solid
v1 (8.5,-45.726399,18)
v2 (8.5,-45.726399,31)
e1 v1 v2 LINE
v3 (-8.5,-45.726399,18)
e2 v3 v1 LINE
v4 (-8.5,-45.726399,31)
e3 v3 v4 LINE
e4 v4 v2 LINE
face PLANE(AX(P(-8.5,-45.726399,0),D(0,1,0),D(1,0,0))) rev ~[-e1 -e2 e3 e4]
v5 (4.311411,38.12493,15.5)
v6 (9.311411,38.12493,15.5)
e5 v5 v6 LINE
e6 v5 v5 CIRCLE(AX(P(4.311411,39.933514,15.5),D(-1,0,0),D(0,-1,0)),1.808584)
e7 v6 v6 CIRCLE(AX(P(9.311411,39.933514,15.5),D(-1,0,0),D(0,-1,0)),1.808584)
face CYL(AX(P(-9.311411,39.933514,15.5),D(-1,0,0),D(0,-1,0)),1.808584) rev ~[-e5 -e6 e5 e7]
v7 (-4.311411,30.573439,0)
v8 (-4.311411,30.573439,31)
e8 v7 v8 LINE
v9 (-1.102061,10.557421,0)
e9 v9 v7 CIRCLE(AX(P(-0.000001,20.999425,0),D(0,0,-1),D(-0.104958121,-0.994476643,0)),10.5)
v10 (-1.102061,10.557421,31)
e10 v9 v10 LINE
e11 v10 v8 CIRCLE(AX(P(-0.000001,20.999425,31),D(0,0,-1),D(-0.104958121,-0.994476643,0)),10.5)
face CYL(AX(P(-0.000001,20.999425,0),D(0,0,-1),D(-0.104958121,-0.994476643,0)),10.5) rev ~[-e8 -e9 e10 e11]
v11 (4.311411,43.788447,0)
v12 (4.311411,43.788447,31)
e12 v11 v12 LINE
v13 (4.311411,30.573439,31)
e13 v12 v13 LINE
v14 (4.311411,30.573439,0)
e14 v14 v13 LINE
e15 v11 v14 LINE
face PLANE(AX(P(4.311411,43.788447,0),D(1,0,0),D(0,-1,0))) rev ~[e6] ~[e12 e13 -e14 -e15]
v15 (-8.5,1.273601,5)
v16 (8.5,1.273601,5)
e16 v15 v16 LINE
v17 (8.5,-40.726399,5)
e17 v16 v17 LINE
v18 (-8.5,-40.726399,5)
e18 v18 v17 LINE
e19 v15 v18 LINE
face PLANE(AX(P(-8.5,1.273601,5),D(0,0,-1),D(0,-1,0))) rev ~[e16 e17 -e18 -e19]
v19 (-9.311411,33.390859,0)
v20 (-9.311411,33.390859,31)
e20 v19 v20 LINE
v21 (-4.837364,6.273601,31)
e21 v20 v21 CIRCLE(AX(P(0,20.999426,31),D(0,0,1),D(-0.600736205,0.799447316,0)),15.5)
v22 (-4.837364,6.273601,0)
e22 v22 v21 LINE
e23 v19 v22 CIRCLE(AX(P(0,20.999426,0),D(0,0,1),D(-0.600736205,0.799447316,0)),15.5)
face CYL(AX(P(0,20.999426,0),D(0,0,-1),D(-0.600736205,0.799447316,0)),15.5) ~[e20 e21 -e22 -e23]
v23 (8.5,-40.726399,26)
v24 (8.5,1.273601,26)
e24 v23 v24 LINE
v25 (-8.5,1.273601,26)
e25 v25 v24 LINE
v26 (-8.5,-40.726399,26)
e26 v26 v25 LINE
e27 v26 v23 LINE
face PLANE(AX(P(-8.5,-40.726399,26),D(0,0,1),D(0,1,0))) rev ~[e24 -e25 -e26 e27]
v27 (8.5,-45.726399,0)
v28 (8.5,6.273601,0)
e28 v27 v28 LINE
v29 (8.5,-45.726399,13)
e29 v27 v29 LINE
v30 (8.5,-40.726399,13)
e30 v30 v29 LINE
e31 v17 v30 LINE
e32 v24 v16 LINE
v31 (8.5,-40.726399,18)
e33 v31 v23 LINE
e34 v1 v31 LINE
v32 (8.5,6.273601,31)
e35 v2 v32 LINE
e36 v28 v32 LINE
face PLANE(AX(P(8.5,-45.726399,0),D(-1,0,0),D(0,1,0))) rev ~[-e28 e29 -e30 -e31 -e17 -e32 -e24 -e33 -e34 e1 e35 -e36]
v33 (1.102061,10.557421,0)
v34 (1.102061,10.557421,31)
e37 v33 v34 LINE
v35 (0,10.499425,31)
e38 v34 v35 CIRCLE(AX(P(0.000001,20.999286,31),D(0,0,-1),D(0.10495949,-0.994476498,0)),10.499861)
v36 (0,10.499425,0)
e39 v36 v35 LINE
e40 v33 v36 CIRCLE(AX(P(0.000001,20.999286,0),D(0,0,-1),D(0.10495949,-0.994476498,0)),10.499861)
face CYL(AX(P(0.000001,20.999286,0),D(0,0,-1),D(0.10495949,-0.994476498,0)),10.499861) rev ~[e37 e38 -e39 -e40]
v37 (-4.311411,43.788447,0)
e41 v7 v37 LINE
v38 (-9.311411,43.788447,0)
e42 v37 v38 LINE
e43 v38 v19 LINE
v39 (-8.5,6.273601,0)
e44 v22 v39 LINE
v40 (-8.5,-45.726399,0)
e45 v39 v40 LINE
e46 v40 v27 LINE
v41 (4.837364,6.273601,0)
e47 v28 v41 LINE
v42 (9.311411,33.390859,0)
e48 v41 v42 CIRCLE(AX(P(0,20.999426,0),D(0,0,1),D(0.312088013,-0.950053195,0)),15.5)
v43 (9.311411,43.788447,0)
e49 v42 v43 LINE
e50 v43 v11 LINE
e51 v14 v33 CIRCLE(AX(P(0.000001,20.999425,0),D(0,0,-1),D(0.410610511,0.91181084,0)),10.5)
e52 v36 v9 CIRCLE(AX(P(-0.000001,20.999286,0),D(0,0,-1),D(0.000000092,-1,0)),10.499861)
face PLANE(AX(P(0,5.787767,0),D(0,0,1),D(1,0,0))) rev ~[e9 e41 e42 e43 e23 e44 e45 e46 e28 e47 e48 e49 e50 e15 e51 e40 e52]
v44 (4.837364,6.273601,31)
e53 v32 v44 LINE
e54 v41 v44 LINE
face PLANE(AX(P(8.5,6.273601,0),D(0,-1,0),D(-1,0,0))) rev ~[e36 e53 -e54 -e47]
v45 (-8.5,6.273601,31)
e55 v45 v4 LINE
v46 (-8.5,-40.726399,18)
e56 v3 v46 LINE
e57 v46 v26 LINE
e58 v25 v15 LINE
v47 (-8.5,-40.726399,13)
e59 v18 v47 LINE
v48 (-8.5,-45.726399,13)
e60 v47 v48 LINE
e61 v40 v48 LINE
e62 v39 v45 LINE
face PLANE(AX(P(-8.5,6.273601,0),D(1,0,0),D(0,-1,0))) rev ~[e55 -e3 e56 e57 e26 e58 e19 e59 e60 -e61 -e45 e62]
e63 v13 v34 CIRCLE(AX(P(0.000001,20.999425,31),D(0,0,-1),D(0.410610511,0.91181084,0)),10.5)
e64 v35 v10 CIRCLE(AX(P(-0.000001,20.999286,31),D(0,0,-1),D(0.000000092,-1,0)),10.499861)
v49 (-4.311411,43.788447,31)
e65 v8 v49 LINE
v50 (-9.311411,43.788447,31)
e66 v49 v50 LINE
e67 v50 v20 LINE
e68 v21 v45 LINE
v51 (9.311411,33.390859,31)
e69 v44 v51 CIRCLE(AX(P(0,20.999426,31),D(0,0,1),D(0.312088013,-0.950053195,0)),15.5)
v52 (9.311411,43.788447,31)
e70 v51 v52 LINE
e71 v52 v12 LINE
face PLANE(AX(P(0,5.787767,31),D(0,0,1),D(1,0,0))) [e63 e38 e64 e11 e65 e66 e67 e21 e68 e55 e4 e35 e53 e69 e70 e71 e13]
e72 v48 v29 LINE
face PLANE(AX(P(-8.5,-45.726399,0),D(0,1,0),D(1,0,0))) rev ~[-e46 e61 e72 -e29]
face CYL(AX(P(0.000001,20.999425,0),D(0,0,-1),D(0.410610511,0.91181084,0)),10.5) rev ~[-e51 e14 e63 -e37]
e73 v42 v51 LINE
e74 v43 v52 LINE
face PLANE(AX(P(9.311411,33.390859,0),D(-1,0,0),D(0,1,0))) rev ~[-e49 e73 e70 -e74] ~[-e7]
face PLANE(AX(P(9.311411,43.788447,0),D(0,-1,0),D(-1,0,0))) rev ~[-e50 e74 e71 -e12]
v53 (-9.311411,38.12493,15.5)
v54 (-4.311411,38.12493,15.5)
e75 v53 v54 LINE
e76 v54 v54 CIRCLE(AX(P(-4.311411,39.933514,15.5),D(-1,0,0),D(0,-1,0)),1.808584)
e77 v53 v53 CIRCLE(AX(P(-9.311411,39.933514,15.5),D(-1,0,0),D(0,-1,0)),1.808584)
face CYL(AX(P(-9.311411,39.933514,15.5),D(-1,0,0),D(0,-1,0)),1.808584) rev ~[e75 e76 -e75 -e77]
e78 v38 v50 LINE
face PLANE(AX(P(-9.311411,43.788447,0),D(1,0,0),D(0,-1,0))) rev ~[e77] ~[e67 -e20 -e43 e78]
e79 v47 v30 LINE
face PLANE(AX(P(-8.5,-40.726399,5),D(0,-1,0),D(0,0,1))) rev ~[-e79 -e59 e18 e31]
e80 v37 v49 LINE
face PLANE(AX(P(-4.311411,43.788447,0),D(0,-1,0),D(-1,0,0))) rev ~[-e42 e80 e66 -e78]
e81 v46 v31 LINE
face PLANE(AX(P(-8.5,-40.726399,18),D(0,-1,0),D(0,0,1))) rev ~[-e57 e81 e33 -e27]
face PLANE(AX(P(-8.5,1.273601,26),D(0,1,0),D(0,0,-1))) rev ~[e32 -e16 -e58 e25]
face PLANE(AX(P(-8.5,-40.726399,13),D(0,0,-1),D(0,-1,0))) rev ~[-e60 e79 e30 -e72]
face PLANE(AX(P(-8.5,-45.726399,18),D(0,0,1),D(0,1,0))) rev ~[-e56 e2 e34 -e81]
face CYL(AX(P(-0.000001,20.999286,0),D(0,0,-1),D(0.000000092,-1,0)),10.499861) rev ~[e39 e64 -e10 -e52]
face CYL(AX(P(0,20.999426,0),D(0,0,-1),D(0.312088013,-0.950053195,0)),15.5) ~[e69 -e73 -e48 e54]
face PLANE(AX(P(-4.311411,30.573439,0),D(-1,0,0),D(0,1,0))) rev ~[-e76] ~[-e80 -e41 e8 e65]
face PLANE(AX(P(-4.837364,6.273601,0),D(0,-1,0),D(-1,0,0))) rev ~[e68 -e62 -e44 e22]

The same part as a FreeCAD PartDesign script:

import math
import FreeCAD as App
import Part
import Sketcher


def add_polygon(sketch, points):
    """Adds a closed chain of lines whose ends are joined by coincident constraints."""
    first, n = sketch.GeometryCount, len(points)
    for a, b in zip(points, points[1:] + points[:1]):
        sketch.addGeometry(Part.LineSegment(App.Vector(*a, 0), App.Vector(*b, 0)), False)
    for i in range(n):
        sketch.addConstraint(Sketcher.Constraint("Coincident", first + i, 2, first + (i + 1) % n, 1))

doc = App.newDocument("Part")
body = doc.addObject("PartDesign::Body", "Body")

# Sketch on XY plane
sketch1 = body.newObject("Sketcher::SketchObject", "Sketch")
sketch1.AttachmentSupport = (doc.getObject("XY_Plane"), [""])
sketch1.MapMode = "FlatFace"
sketch1.addGeometry(Part.LineSegment(App.Vector(-4.311411, 30.573439, 0), App.Vector(-4.311411, 43.788447, 0)), False)
sketch1.addGeometry(Part.LineSegment(App.Vector(-4.311411, 43.788447, 0), App.Vector(-9.311411, 43.788447, 0)), False)
sketch1.addGeometry(Part.LineSegment(App.Vector(-9.311411, 43.788447, 0), App.Vector(-9.311411, 33.390859, 0)), False)
sketch1.addGeometry(Part.ArcOfCircle(Part.Circle(App.Vector(0, 20.999426, 0), App.Vector(0, 0, 1), 15.5), math.radians(126.922643), math.radians(251.814891)), False)
sketch1.addGeometry(Part.LineSegment(App.Vector(-4.837364, 6.273601, 0), App.Vector(-8.5, 6.273601, 0)), False)
sketch1.addGeometry(Part.LineSegment(App.Vector(-8.5, 6.273601, 0), App.Vector(-8.5, -45.726399, 0)), False)
sketch1.addGeometry(Part.LineSegment(App.Vector(-8.5, -45.726399, 0), App.Vector(8.5, -45.726399, 0)), False)
sketch1.addGeometry(Part.LineSegment(App.Vector(8.5, -45.726399, 0), App.Vector(8.5, 6.273601, 0)), False)
sketch1.addGeometry(Part.LineSegment(App.Vector(8.5, 6.273601, 0), App.Vector(4.837364, 6.273601, 0)), False)
sketch1.addGeometry(Part.ArcOfCircle(Part.Circle(App.Vector(0, 20.999426, 0), App.Vector(0, 0, 1), 15.5), math.radians(-71.814891), math.radians(53.077357)), False)
sketch1.addGeometry(Part.LineSegment(App.Vector(9.311411, 33.390859, 0), App.Vector(9.311411, 43.788447, 0)), False)
sketch1.addGeometry(Part.LineSegment(App.Vector(9.311411, 43.788447, 0), App.Vector(4.311411, 43.788447, 0)), False)
sketch1.addGeometry(Part.LineSegment(App.Vector(4.311411, 43.788447, 0), App.Vector(4.311411, 30.573439, 0)), False)
sketch1.addGeometry(Part.ArcOfCircle(Part.Circle(App.Vector(0.000001, 20.999425, 0), App.Vector(0, 0, 1), 10.5), math.radians(-83.975246), math.radians(65.756808)), False)
sketch1.addGeometry(Part.ArcOfCircle(Part.Circle(App.Vector(0.000001, 20.999286, 0), App.Vector(0, 0, 1), 10.499861), math.radians(-90.000005), math.radians(-83.975167)), False)
sketch1.addGeometry(Part.ArcOfCircle(Part.Circle(App.Vector(-0.000001, 20.999286, 0), App.Vector(0, 0, 1), 10.499861), math.radians(-96.024833), math.radians(-89.999995)), False)
sketch1.addGeometry(Part.ArcOfCircle(Part.Circle(App.Vector(-0.000001, 20.999425, 0), App.Vector(0, 0, 1), 10.5), math.radians(114.243192), math.radians(263.975246)), False)
sketch1.addConstraint(Sketcher.Constraint("Coincident", 0, 2, 1, 1))
sketch1.addConstraint(Sketcher.Constraint("Coincident", 1, 2, 2, 1))
sketch1.addConstraint(Sketcher.Constraint("Coincident", 2, 2, 3, 1))
sketch1.addConstraint(Sketcher.Constraint("Coincident", 3, 2, 4, 1))
sketch1.addConstraint(Sketcher.Constraint("Coincident", 4, 2, 5, 1))
sketch1.addConstraint(Sketcher.Constraint("Coincident", 5, 2, 6, 1))
sketch1.addConstraint(Sketcher.Constraint("Coincident", 6, 2, 7, 1))
sketch1.addConstraint(Sketcher.Constraint("Coincident", 7, 2, 8, 1))
sketch1.addConstraint(Sketcher.Constraint("Coincident", 8, 2, 9, 1))
sketch1.addConstraint(Sketcher.Constraint("Coincident", 9, 2, 10, 1))
sketch1.addConstraint(Sketcher.Constraint("Coincident", 10, 2, 11, 1))
sketch1.addConstraint(Sketcher.Constraint("Coincident", 11, 2, 12, 1))
sketch1.addConstraint(Sketcher.Constraint("Coincident", 12, 2, 13, 2))
sketch1.addConstraint(Sketcher.Constraint("Coincident", 13, 1, 14, 2))
sketch1.addConstraint(Sketcher.Constraint("Coincident", 14, 1, 15, 2))
sketch1.addConstraint(Sketcher.Constraint("Coincident", 15, 1, 16, 2))
sketch1.addConstraint(Sketcher.Constraint("Coincident", 16, 1, 0, 1))
sketch1.addConstraint(Sketcher.Constraint("Vertical", 0))
sketch1.addConstraint(Sketcher.Constraint("Horizontal", 1))
sketch1.addConstraint(Sketcher.Constraint("Vertical", 2))
sketch1.addConstraint(Sketcher.Constraint("Horizontal", 4))
sketch1.addConstraint(Sketcher.Constraint("Vertical", 5))
sketch1.addConstraint(Sketcher.Constraint("Horizontal", 6))
sketch1.addConstraint(Sketcher.Constraint("Vertical", 7))
sketch1.addConstraint(Sketcher.Constraint("Horizontal", 8))
sketch1.addConstraint(Sketcher.Constraint("Vertical", 10))
sketch1.addConstraint(Sketcher.Constraint("Horizontal", 11))
sketch1.addConstraint(Sketcher.Constraint("Vertical", 12))
sketch1.addConstraint(Sketcher.Constraint("Coincident", 9, 3, 3, 3))
sketch1.addConstraint(Sketcher.Constraint("Coincident", 13, 3, 3, 3))
sketch1.addConstraint(Sketcher.Constraint("Coincident", 15, 3, 14, 3))
sketch1.addConstraint(Sketcher.Constraint("Coincident", 16, 3, 3, 3))
sketch1.addConstraint(Sketcher.Constraint("PointOnObject", 3, 3, -2))
sketch1.addConstraint(Sketcher.Constraint("PointOnObject", 14, 3, -2))
sketch1.addConstraint(Sketcher.Constraint("PointOnObject", 14, 1, -2))
sketch1.addConstraint(Sketcher.Constraint("Radius", 3, 15.5))
sketch1.addConstraint(Sketcher.Constraint("Radius", 9, 15.5))
sketch1.addConstraint(Sketcher.Constraint("Radius", 13, 10.5))
sketch1.addConstraint(Sketcher.Constraint("DistanceX", 1, 2, 1, 1, 5.0))
sketch1.addConstraint(Sketcher.Constraint("DistanceX", 6, 1, 6, 2, 17.0))
sketch1.addConstraint(Sketcher.Constraint("DistanceX", 11, 2, 11, 1, 5.0))
sketch1.addConstraint(Sketcher.Constraint("DistanceY", 5, 2, 5, 1, 52.0))
sketch1.addConstraint(Sketcher.Constraint("DistanceY", 7, 1, 7, 2, 52.0))
sketch1.addConstraint(Sketcher.Constraint("DistanceX", 4, 2, -1, 1, 8.5))
sketch1.addConstraint(Sketcher.Constraint("Radius", 14, 10.499861))
sketch1.addConstraint(Sketcher.Constraint("DistanceY", -1, 1, 3, 2, 6.273601))
sketch1.addConstraint(Sketcher.Constraint("DistanceX", 4, 2, 4, 1, 3.662636))
sketch1.addConstraint(Sketcher.Constraint("DistanceY", 0, 1, 0, 2, 13.215008))
sketch1.addConstraint(Sketcher.Constraint("DistanceY", 2, 2, 2, 1, 10.397588))
sketch1.addConstraint(Sketcher.Constraint("DistanceY", 10, 1, 10, 2, 10.397588))
sketch1.addConstraint(Sketcher.Constraint("DistanceY", 12, 2, 12, 1, 13.215008))
sketch1.addConstraint(Sketcher.Constraint("DistanceX", -1, 1, 13, 1, 1.102061))
sketch1.addConstraint(Sketcher.Constraint("DistanceX", 15, 1, -1, 1, 1.102061))
pad1 = body.newObject("PartDesign::Pad", "Pad")
pad1.Profile = sketch1
pad1.Length = 31

# Sketch on YZ plane
sketch2 = body.newObject("Sketcher::SketchObject", "Sketch001")
sketch2.AttachmentSupport = (doc.getObject("YZ_Plane"), [""])
sketch2.MapMode = "FlatFace"
sketch2.AttachmentOffset = App.Placement(App.Vector(0, 0, -9.311411), App.Rotation())
sketch2.addGeometry(Part.Circle(App.Vector(39.9, 15.5, 0), App.Vector(0, 0, 1), 1.8), False)
sketch2.addConstraint(Sketcher.Constraint("DistanceY", -1, 1, 0, 3, 15.5))
sketch2.addConstraint(Sketcher.Constraint("Diameter", 0, 3.617168))
sketch2.addConstraint(Sketcher.Constraint("DistanceX", -1, 1, 0, 3, 39.933514))
pocket1 = body.newObject("PartDesign::Pocket", "Pocket")
pocket1.Profile = sketch2
pocket1.Length = 25
pocket1.Reversed = True

# Sketch on YZ plane
sketch3 = body.newObject("Sketcher::SketchObject", "Sketch002")
sketch3.AttachmentSupport = (doc.getObject("YZ_Plane"), [""])
sketch3.MapMode = "FlatFace"
sketch3.AttachmentOffset = App.Placement(App.Vector(0, 0, -8.5), App.Rotation())
add_polygon(sketch3, [(-41, 5), (-41, 13), (-46, 13), (-46, 18), (-41, 18), (-41, 26), (1, 26), (1, 5)])  # lines 0-7
sketch3.addConstraint(Sketcher.Constraint("Vertical", 0))
sketch3.addConstraint(Sketcher.Constraint("Horizontal", 1))
sketch3.addConstraint(Sketcher.Constraint("Vertical", 2))
sketch3.addConstraint(Sketcher.Constraint("Horizontal", 3))
sketch3.addConstraint(Sketcher.Constraint("Vertical", 4))
sketch3.addConstraint(Sketcher.Constraint("Horizontal", 5))
sketch3.addConstraint(Sketcher.Constraint("Vertical", 6))
sketch3.addConstraint(Sketcher.Constraint("Horizontal", 7))
sketch3.addConstraint(Sketcher.Constraint("Vertical", 0, 2, 3, 2))
sketch3.addConstraint(Sketcher.Constraint("Equal", 3, 2))
sketch3.addConstraint(Sketcher.Constraint("Equal", 0, 4))
sketch3.addConstraint(Sketcher.Constraint("DistanceX", 1, 2, 1, 1, 5.0))
sketch3.addConstraint(Sketcher.Constraint("DistanceX", 5, 1, 5, 2, 42.0))
sketch3.addConstraint(Sketcher.Constraint("DistanceY", 0, 1, 0, 2, 8.0))
sketch3.addConstraint(Sketcher.Constraint("DistanceY", -1, 1, 0, 2, 13.0))
sketch3.addConstraint(Sketcher.Constraint("DistanceX", 0, 2, -1, 1, 40.726399))
pocket2 = body.newObject("PartDesign::Pocket", "Pocket001")
pocket2.Profile = sketch3
pocket2.Length = 25
pocket2.Reversed = True

doc.recompute()
